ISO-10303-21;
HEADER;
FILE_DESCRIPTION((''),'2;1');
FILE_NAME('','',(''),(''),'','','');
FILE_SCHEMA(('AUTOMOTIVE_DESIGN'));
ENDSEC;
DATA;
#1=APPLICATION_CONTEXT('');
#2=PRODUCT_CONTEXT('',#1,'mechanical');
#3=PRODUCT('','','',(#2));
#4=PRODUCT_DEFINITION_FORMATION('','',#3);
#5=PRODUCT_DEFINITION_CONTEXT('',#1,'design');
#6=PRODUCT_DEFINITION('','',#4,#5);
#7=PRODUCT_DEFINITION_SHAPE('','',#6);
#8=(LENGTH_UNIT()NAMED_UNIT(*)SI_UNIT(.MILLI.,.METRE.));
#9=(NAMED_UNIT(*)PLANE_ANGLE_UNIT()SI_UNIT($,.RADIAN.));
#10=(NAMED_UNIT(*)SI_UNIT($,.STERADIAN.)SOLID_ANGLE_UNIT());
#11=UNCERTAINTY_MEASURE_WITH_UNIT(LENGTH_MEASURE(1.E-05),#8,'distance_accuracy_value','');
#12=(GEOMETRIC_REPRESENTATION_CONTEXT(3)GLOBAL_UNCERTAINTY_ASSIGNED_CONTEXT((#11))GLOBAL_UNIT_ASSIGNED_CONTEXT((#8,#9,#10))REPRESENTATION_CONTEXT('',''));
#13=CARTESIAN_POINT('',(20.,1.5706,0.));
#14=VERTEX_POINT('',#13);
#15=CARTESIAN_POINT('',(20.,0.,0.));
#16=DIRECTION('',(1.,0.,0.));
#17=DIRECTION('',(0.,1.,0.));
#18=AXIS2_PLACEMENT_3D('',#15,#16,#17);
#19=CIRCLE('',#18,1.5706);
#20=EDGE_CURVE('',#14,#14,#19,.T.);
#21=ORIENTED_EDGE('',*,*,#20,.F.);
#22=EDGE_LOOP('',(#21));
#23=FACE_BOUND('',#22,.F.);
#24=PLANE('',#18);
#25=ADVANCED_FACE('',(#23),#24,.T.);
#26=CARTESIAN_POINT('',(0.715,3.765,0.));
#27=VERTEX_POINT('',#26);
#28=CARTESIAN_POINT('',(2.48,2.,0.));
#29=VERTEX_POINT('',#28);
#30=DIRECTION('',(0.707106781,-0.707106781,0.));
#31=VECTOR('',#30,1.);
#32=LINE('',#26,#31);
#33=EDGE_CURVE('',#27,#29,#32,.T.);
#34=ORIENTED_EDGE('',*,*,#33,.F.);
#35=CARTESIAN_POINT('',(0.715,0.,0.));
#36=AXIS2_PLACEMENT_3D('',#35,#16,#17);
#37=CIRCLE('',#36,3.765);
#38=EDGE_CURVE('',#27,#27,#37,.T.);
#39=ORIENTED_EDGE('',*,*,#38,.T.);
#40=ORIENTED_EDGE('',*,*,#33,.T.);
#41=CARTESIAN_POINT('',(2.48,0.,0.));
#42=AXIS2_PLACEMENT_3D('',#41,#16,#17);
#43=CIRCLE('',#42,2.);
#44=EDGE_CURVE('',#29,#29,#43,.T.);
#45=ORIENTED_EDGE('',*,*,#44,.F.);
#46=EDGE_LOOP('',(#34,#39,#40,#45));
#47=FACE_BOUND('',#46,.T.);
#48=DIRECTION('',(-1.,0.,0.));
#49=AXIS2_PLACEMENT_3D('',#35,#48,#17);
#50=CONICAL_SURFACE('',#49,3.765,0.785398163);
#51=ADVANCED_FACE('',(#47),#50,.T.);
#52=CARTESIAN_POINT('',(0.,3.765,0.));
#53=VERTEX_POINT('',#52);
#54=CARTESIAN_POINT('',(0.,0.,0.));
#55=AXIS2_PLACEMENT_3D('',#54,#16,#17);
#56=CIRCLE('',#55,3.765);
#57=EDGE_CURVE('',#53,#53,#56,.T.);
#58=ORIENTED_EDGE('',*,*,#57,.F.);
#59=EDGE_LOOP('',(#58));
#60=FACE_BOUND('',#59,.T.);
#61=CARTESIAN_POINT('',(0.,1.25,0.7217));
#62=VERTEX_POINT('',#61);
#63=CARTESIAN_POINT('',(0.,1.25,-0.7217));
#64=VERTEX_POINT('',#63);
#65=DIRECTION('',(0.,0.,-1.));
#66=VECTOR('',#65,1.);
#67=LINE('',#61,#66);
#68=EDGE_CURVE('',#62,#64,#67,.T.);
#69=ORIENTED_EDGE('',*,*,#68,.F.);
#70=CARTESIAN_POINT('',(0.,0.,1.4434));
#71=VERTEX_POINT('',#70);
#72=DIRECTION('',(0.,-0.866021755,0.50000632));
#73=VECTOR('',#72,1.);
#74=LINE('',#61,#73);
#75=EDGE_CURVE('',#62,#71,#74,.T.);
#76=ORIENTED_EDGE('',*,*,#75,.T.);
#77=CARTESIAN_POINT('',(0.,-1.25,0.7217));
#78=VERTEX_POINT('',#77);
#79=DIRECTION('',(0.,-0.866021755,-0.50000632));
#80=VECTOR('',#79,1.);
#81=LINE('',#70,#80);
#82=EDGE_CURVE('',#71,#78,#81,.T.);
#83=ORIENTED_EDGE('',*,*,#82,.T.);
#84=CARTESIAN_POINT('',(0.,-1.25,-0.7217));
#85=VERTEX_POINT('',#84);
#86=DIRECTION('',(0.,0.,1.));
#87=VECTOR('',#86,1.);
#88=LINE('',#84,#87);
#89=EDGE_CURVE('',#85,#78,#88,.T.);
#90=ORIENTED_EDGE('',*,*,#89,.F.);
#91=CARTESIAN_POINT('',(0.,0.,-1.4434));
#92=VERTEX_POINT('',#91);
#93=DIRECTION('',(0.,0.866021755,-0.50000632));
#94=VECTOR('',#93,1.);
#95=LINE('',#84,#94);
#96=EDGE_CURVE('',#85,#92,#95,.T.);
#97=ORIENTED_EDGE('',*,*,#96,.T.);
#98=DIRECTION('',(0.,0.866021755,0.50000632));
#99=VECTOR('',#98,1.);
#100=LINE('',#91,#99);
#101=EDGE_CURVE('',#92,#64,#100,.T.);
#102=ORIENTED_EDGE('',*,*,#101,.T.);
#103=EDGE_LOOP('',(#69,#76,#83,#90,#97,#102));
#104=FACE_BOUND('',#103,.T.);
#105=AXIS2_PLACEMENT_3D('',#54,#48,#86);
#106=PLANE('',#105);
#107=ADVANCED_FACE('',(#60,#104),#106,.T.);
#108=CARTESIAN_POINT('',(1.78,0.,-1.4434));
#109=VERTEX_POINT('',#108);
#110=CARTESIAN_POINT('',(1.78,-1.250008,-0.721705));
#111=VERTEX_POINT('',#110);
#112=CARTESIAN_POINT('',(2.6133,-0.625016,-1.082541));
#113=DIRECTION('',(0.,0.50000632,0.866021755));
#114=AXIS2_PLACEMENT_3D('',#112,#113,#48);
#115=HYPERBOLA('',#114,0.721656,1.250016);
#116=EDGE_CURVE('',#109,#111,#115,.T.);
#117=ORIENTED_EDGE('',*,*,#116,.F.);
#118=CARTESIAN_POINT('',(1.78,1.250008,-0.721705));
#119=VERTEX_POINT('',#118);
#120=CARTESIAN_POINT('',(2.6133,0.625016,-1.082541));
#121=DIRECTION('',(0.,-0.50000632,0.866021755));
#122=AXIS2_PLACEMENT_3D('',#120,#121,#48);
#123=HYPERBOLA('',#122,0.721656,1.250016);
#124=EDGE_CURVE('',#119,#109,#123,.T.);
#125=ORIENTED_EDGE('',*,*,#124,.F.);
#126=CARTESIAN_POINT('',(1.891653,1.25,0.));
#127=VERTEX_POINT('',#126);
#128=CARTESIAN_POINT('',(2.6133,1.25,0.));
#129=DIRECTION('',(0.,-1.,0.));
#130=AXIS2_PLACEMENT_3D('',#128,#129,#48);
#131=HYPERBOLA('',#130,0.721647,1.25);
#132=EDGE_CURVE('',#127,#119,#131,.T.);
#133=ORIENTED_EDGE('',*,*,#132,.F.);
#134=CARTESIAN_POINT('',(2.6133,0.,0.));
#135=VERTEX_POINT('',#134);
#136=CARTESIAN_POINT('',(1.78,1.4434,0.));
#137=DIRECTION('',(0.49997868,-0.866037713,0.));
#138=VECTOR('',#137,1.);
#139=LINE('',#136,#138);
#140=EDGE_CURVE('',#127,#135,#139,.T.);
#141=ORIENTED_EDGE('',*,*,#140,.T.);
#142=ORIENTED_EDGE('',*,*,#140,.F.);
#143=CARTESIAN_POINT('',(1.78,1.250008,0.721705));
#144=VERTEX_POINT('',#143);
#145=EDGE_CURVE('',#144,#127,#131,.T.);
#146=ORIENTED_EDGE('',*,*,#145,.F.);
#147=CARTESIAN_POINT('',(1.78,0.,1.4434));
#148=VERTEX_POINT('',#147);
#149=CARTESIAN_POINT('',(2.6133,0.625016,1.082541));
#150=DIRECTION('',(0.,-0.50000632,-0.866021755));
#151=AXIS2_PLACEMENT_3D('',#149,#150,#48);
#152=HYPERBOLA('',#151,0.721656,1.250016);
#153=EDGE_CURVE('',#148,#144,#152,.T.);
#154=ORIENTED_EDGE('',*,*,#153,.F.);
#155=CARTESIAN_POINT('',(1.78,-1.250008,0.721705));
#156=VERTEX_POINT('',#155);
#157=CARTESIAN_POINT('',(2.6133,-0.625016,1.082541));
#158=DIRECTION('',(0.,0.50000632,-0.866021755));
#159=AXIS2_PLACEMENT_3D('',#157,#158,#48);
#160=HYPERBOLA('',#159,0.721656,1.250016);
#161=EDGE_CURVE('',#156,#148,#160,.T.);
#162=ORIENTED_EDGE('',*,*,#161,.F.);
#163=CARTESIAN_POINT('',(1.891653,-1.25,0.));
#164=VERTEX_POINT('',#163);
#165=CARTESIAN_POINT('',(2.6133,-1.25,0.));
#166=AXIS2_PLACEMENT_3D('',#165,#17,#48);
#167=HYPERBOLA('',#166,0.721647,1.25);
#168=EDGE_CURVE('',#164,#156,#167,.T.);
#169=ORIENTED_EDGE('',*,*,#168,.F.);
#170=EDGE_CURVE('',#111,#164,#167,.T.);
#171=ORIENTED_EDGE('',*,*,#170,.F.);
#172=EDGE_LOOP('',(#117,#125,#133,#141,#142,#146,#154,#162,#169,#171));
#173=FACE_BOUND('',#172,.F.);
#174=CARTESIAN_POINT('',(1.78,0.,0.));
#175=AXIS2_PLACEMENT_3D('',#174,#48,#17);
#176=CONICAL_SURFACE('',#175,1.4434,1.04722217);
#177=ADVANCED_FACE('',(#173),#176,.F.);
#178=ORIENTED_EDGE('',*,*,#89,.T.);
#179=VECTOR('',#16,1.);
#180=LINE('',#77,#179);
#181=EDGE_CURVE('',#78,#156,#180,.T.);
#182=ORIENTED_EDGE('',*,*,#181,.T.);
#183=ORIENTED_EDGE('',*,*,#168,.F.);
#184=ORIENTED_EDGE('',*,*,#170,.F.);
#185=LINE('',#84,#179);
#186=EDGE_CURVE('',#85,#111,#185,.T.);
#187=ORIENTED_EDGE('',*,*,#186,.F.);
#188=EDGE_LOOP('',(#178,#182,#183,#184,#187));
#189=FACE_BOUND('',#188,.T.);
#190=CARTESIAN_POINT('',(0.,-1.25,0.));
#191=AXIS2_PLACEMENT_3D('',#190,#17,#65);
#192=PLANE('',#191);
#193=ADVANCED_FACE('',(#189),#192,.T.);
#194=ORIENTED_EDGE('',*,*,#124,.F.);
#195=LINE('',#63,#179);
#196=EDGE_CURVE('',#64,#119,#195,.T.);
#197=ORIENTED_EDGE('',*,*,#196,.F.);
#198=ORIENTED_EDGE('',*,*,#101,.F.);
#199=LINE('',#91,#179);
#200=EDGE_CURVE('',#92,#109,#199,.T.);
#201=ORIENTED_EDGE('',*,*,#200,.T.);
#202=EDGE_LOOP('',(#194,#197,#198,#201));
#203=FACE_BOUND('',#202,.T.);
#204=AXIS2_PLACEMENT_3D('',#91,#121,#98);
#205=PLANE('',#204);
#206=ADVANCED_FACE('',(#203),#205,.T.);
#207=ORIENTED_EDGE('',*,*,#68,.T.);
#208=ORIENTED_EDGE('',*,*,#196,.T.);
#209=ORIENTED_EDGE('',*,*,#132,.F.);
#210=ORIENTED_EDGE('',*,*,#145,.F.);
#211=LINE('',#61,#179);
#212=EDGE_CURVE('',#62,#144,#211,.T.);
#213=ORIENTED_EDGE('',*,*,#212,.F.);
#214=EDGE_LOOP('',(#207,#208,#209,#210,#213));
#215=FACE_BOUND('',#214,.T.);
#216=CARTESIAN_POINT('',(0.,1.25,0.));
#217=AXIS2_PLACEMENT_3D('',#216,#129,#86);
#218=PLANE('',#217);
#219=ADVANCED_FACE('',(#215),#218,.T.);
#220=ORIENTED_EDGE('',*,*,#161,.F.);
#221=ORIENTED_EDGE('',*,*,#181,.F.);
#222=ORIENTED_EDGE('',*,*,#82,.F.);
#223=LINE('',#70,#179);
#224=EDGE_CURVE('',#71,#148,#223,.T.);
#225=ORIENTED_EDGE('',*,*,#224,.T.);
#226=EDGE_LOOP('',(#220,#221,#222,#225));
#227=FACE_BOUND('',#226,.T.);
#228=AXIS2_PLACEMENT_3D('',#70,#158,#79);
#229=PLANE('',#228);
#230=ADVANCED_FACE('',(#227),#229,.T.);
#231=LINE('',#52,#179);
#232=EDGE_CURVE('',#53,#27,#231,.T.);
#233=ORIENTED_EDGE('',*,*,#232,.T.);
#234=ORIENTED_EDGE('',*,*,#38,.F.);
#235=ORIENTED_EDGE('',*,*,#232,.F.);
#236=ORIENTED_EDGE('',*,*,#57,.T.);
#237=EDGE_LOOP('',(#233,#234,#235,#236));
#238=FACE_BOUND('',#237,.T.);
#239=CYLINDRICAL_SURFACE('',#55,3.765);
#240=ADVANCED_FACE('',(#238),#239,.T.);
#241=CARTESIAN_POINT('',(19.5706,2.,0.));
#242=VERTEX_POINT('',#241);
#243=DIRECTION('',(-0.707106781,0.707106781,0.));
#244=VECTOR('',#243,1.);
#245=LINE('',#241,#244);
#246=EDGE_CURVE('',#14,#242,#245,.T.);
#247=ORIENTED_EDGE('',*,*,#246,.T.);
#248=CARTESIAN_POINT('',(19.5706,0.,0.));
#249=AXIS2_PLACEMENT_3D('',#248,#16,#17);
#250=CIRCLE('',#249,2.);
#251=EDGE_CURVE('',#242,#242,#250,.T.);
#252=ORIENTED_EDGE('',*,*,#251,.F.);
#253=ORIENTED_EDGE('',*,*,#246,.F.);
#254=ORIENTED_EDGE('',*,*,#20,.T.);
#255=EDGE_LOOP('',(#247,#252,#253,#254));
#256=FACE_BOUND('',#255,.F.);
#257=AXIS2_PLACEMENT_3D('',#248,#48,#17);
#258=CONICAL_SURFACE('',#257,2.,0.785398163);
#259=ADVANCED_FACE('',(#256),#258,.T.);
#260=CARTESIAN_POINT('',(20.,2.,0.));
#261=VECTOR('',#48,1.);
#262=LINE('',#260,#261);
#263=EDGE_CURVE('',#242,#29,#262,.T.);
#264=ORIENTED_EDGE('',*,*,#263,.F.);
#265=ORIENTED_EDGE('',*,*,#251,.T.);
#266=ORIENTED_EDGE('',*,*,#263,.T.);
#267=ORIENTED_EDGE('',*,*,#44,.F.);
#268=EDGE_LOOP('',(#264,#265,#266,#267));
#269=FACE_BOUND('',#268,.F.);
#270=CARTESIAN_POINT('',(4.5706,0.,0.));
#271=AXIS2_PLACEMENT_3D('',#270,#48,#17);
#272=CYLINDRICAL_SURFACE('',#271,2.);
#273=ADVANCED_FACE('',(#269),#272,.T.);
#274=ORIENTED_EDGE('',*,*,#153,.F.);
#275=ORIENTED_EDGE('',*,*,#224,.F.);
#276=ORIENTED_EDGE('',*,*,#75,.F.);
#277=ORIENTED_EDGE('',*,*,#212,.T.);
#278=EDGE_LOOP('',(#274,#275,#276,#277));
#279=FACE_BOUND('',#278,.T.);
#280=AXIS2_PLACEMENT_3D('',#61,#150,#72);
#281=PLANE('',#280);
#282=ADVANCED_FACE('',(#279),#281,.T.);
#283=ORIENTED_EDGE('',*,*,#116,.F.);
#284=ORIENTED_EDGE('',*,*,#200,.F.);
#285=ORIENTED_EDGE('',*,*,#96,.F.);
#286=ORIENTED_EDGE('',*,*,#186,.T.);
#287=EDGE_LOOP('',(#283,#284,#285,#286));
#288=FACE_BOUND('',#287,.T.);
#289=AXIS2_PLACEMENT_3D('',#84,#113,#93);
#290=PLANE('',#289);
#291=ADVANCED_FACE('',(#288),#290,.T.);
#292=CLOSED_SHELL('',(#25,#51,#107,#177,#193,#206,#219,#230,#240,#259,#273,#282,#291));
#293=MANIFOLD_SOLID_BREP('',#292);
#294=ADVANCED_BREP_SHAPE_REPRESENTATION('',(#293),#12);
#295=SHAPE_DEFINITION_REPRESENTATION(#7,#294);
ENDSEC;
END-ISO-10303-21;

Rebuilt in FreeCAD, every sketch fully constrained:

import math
import FreeCAD as App
import Part
import Sketcher
from FreeCAD import Vector
Q = App.Units.Quantity


def edges_at(feature, points):
    """Names of the edges that pass closest to the given points."""
    edges = feature.Shape.Edges
    near = lambda p: min(range(len(edges)), key=lambda i: edges[i].distToShape(Part.Vertex(*p))[0])
    return sorted({f"Edge{near(p) + 1}" for p in points})

doc = App.newDocument("Part")
body = doc.addObject("PartDesign::Body", "Body")

# Sketch on XY plane
sketch1 = body.newObject("Sketcher::SketchObject", "Sketch")
sketch1.AttachmentSupport = (doc.getObject("XY_Plane"), [""])
sketch1.MapMode = "FlatFace"
sketch1.addGeometry([
    Part.LineSegment(Vector(2.6, 0, 0), Vector(20, 0, 0)),  # 0
    Part.LineSegment(Vector(20, 0, 0), Vector(20, 2, 0)),  # 1
    Part.LineSegment(Vector(20, 2, 0), Vector(2.5, 2, 0)),  # 2
    Part.LineSegment(Vector(2.5, 2, 0), Vector(0.7, 3.8, 0)),  # 3
    Part.LineSegment(Vector(0.7, 3.8, 0), Vector(0, 3.8, 0)),  # 4
    Part.LineSegment(Vector(0, 3.8, 0), Vector(0, 1.4, 0)),  # 5
    Part.LineSegment(Vector(0, 1.4, 0), Vector(1.8, 1.4, 0)),  # 6
    Part.LineSegment(Vector(1.8, 1.4, 0), Vector(2.6, 0, 0)),  # 7
], False)
sketch1.addConstraint([
    Sketcher.Constraint("Coincident", 0, 2, 1, 1),
    Sketcher.Constraint("Coincident", 1, 2, 2, 1),
    Sketcher.Constraint("Coincident", 2, 2, 3, 1),
    Sketcher.Constraint("Coincident", 3, 2, 4, 1),
    Sketcher.Constraint("Coincident", 4, 2, 5, 1),
    Sketcher.Constraint("Coincident", 5, 2, 6, 1),
    Sketcher.Constraint("Coincident", 6, 2, 7, 1),
    Sketcher.Constraint("Coincident", 7, 2, 0, 1),
    Sketcher.Constraint("Horizontal", 0),
    Sketcher.Constraint("Vertical", 1),
    Sketcher.Constraint("Horizontal", 2),
    Sketcher.Constraint("Horizontal", 4),
    Sketcher.Constraint("Vertical", 5),
    Sketcher.Constraint("Horizontal", 6),
    Sketcher.Constraint("PointOnObject", 0, 2, -1),
    Sketcher.Constraint("PointOnObject", 4, 2, -2),
    Sketcher.Constraint("DistanceX", -1, 1, 0, 2, 20.0),
    Sketcher.Constraint("DistanceX", 6, 1, 6, 2, 1.78),
    Sketcher.Constraint("DistanceY", 1, 1, 1, 2, 2.0),
    Sketcher.Constraint("DistanceX", -1, 1, 2, 2, 2.48),
    Sketcher.Constraint("Angle", 3, Q("135 deg")),
    Sketcher.Constraint("DistanceX", 4, 2, 4, 1, 0.715),
    Sketcher.Constraint("DistanceX", 0, 1, 0, 2, 17.3867),
    Sketcher.Constraint("DistanceY", 5, 2, 5, 1, 2.3216),
])
revolution = body.newObject("PartDesign::Revolution", "Revolution")
revolution.Profile = sketch1
revolution.ReferenceAxis = (sketch1, ["H_Axis"])
revolution.Angle = 360

# Sketch on YZ plane
sketch2 = body.newObject("Sketcher::SketchObject", "Sketch001")
sketch2.AttachmentSupport = (doc.getObject("YZ_Plane"), [""])
sketch2.MapMode = "FlatFace"
sketch2.addGeometry([
    Part.LineSegment(Vector(1.2, 0.7, 0), Vector(0, 1.4, 0)),  # 0
    Part.ArcOfCircle(Part.Circle(Vector(0, 0, 0), Vector(0, 0, 1), 1.4), math.radians(30), math.radians(90)),  # 1
    Part.ArcOfCircle(Part.Circle(Vector(0, 0, 0), Vector(0, 0, 1), 1.4), math.radians(90), math.radians(150)),  # 2
    Part.LineSegment(Vector(0, 1.4, 0), Vector(-1.2, 0.7, 0)),  # 3
    Part.ArcOfCircle(Part.Circle(Vector(0, 0, 0), Vector(0, 0, 1), 1.4), math.radians(-30), math.radians(30)),  # 4
    Part.LineSegment(Vector(1.2, 0.7, 0), Vector(1.2, -0.7, 0)),  # 5
    Part.LineSegment(Vector(-1.2, 0.7, 0), Vector(-1.2, -0.7, 0)),  # 6
    Part.ArcOfCircle(Part.Circle(Vector(0, 0, 0), Vector(0, 0, 1), 1.4), math.radians(150), math.radians(210)),  # 7
    Part.LineSegment(Vector(-1.2, -0.7, 0), Vector(0, -1.4, 0)),  # 8
    Part.ArcOfCircle(Part.Circle(Vector(0, 0, 0), Vector(0, 0, 1), 1.4), math.radians(-150), math.radians(-90)),  # 9
    Part.ArcOfCircle(Part.Circle(Vector(0, 0, 0), Vector(0, 0, 1), 1.4), math.radians(-90), math.radians(-30)),  # 10
    Part.LineSegment(Vector(0, -1.4, 0), Vector(1.2, -0.7, 0)),  # 11
], False)
sketch2.addConstraint([
    Sketcher.Constraint("Coincident", 0, 1, 1, 1),
    Sketcher.Constraint("Coincident", 1, 2, 0, 2),
    Sketcher.Constraint("Coincident", 2, 1, 3, 1),
    Sketcher.Constraint("Coincident", 3, 2, 2, 2),
    Sketcher.Constraint("Coincident", 4, 1, 5, 2),
    Sketcher.Constraint("Coincident", 5, 1, 4, 2),
    Sketcher.Constraint("Coincident", 6, 1, 7, 1),
    Sketcher.Constraint("Coincident", 7, 2, 6, 2),
    Sketcher.Constraint("Coincident", 8, 1, 9, 1),
    Sketcher.Constraint("Coincident", 9, 2, 8, 2),
    Sketcher.Constraint("Coincident", 10, 1, 11, 1),
    Sketcher.Constraint("Coincident", 11, 2, 10, 2),
    Sketcher.Constraint("Vertical", 5),
    Sketcher.Constraint("Vertical", 6),
    Sketcher.Constraint("Coincident", 1, 3, -1, 1),
    Sketcher.Constraint("Coincident", 2, 3, -1, 1),
    Sketcher.Constraint("Coincident", 4, 3, -1, 1),
    Sketcher.Constraint("Coincident", 7, 3, -1, 1),
    Sketcher.Constraint("Coincident", 9, 3, -1, 1),
    Sketcher.Constraint("Coincident", 10, 3, -1, 1),
    Sketcher.Constraint("Coincident", 2, 1, 1, 2),
    Sketcher.Constraint("Coincident", 5, 1, 0, 1),
    Sketcher.Constraint("Coincident", 6, 1, 3, 2),
    Sketcher.Constraint("Coincident", 8, 1, 7, 2),
    Sketcher.Constraint("Coincident", 10, 1, 9, 2),
    Sketcher.Constraint("PointOnObject", 1, 2, -2),
    Sketcher.Constraint("PointOnObject", 9, 2, -2),
    Sketcher.Constraint("Parallel", 0, 8),
    Sketcher.Constraint("Parallel", 3, 11),
    Sketcher.Constraint("Angle", 0, Q("149.9996 deg")),
    Sketcher.Constraint("Radius", 1, 1.4434),
])
pad1 = body.newObject("PartDesign::Pad", "Pad")
pad1.Profile = sketch2
pad1.Type = "UpToFirst"
doc.recompute()

chamfer = body.newObject("PartDesign::Chamfer", "Chamfer")
chamfer.Base = (pad1, edges_at(pad1, [(20, -2, 0)]))
chamfer.ChamferType = "Two distances"
chamfer.Size = 0.4294
chamfer.Size2 = 0.4294

doc.recompute()
